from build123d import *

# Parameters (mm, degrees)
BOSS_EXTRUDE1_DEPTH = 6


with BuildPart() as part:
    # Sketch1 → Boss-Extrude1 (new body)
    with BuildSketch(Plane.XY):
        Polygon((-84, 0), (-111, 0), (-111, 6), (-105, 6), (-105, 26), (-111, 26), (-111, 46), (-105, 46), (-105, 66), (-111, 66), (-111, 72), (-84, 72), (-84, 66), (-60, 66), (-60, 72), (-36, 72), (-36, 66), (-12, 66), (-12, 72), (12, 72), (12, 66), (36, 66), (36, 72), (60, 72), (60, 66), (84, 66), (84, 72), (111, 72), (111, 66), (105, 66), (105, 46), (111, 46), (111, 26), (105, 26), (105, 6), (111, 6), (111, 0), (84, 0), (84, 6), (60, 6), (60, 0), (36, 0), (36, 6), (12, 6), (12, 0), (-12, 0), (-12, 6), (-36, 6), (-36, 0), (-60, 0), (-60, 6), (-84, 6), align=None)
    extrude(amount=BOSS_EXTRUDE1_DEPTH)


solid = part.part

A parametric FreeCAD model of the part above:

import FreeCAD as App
import Part
import Sketcher

V = App.Vector
Q = App.Units.Quantity


def add_polygon(sketch, points):
    """Adds a closed chain of lines whose ends are joined by coincident constraints."""
    first, n = sketch.GeometryCount, len(points)
    for a, b in zip(points, points[1:] + points[:1]):
        sketch.addGeometry(Part.LineSegment(App.Vector(*a, 0), App.Vector(*b, 0)), False)
    for i in range(n):
        sketch.addConstraint(Sketcher.Constraint("Coincident", first + i, 2, first + (i + 1) % n, 1))

doc = App.newDocument("Part")
body = doc.addObject("PartDesign::Body", "Body")

# Sketch on XY plane
sketch1 = body.newObject("Sketcher::SketchObject", "Sketch")
sketch1.AttachmentSupport = (doc.getObject("XY_Plane"), [""])
sketch1.MapMode = "FlatFace"
add_polygon(sketch1, [(-111, 0), (-84, 0), (-84, 6), (-60, 6), (-60, 0), (-36, 0), (-36, 6), (-12, 6), (-12, 0), (12, 0), (12, 6), (36, 6), (36, 0), (60, 0), (60, 6), (84, 6), (84, 0), (111, 0), (111, 6), (105, 6), (105, 26), (111, 26), (111, 46), (105, 46), (105, 66), (111, 66), (111, 72), (84, 72), (84, 66), (60, 66), (60, 72), (36, 72), (36, 66), (12, 66), (12, 72), (-12, 72), (-12, 66), (-36, 66), (-36, 72), (-60, 72), (-60, 66), (-84, 66), (-84, 72), (-111, 72), (-111, 66), (-105, 66), (-105, 46), (-111, 46), (-111, 26), (-105, 26), (-105, 6), (-111, 6)])  # lines 0-51
sketch1.addConstraint(Sketcher.Constraint("Horizontal", 0))
sketch1.addConstraint(Sketcher.Constraint("Vertical", 1))
sketch1.addConstraint(Sketcher.Constraint("Horizontal", 2))
sketch1.addConstraint(Sketcher.Constraint("Vertical", 3))
sketch1.addConstraint(Sketcher.Constraint("Horizontal", 4))
sketch1.addConstraint(Sketcher.Constraint("Vertical", 5))
sketch1.addConstraint(Sketcher.Constraint("Horizontal", 6))
sketch1.addConstraint(Sketcher.Constraint("Vertical", 7))
sketch1.addConstraint(Sketcher.Constraint("Horizontal", 8))
sketch1.addConstraint(Sketcher.Constraint("Vertical", 9))
sketch1.addConstraint(Sketcher.Constraint("Horizontal", 10))
sketch1.addConstraint(Sketcher.Constraint("Vertical", 11))
sketch1.addConstraint(Sketcher.Constraint("Horizontal", 12))
sketch1.addConstraint(Sketcher.Constraint("Vertical", 13))
sketch1.addConstraint(Sketcher.Constraint("Horizontal", 14))
sketch1.addConstraint(Sketcher.Constraint("Vertical", 15))
sketch1.addConstraint(Sketcher.Constraint("Horizontal", 16))
sketch1.addConstraint(Sketcher.Constraint("Vertical", 17))
sketch1.addConstraint(Sketcher.Constraint("Horizontal", 18))
sketch1.addConstraint(Sketcher.Constraint("Vertical", 19))
sketch1.addConstraint(Sketcher.Constraint("Horizontal", 20))
sketch1.addConstraint(Sketcher.Constraint("Vertical", 21))
sketch1.addConstraint(Sketcher.Constraint("Horizontal", 22))
sketch1.addConstraint(Sketcher.Constraint("Vertical", 23))
sketch1.addConstraint(Sketcher.Constraint("Horizontal", 24))
sketch1.addConstraint(Sketcher.Constraint("Vertical", 25))
sketch1.addConstraint(Sketcher.Constraint("Horizontal", 26))
sketch1.addConstraint(Sketcher.Constraint("Vertical", 27))
sketch1.addConstraint(Sketcher.Constraint("Horizontal", 28))
sketch1.addConstraint(Sketcher.Constraint("Vertical", 29))
sketch1.addConstraint(Sketcher.Constraint("Horizontal", 30))
sketch1.addConstraint(Sketcher.Constraint("Vertical", 31))
sketch1.addConstraint(Sketcher.Constraint("Horizontal", 32))
sketch1.addConstraint(Sketcher.Constraint("Vertical", 33))
sketch1.addConstraint(Sketcher.Constraint("Horizontal", 34))
sketch1.addConstraint(Sketcher.Constraint("Vertical", 35))
sketch1.addConstraint(Sketcher.Constraint("Horizontal", 36))
sketch1.addConstraint(Sketcher.Constraint("Vertical", 37))
sketch1.addConstraint(Sketcher.Constraint("Horizontal", 38))
sketch1.addConstraint(Sketcher.Constraint("Vertical", 39))
sketch1.addConstraint(Sketcher.Constraint("Horizontal", 40))
sketch1.addConstraint(Sketcher.Constraint("Vertical", 41))
sketch1.addConstraint(Sketcher.Constraint("Horizontal", 42))
sketch1.addConstraint(Sketcher.Constraint("Vertical", 43))
sketch1.addConstraint(Sketcher.Constraint("Horizontal", 44))
sketch1.addConstraint(Sketcher.Constraint("Vertical", 45))
sketch1.addConstraint(Sketcher.Constraint("Horizontal", 46))
sketch1.addConstraint(Sketcher.Constraint("Vertical", 47))
sketch1.addConstraint(Sketcher.Constraint("Horizontal", 48))
sketch1.addConstraint(Sketcher.Constraint("Vertical", 49))
sketch1.addConstraint(Sketcher.Constraint("Horizontal", 50))
sketch1.addConstraint(Sketcher.Constraint("Vertical", 51))
sketch1.addConstraint(Sketcher.Constraint("Symmetric", 7, 2, 8, 2, -1, 1))
sketch1.addConstraint(Sketcher.Constraint("Symmetric", 4, 2, 11, 2, -1, 1))
sketch1.addConstraint(Sketcher.Constraint("Symmetric", 0, 2, 15, 2, -1, 1))
sketch1.addConstraint(Sketcher.Constraint("Symmetric", 3, 2, 12, 2, -2))
sketch1.addConstraint(Sketcher.Constraint("Symmetric", 32, 2, 35, 2, -2))
sketch1.addConstraint(Sketcher.Constraint("Symmetric", 30, 2, 37, 2, -2))
sketch1.addConstraint(Sketcher.Constraint("Symmetric", 28, 2, 39, 2, -2))
sketch1.addConstraint(Sketcher.Constraint("Symmetric", 26, 2, 41, 2, -2))
sketch1.addConstraint(Sketcher.Constraint("Symmetric", 24, 2, 43, 2, -2))
sketch1.addConstraint(Sketcher.Constraint("Symmetric", 22, 2, 45, 2, -2))
sketch1.addConstraint(Sketcher.Constraint("Symmetric", 20, 2, 47, 2, -2))
sketch1.addConstraint(Sketcher.Constraint("Symmetric", 18, 2, 49, 2, -2))
sketch1.addConstraint(Sketcher.Constraint("Symmetric", 16, 2, 51, 2, -2))
sketch1.addConstraint(Sketcher.Constraint("Horizontal", 2, 2, 5, 2))
sketch1.addConstraint(Sketcher.Constraint("Horizontal", 6, 2, 9, 2))
sketch1.addConstraint(Sketcher.Constraint("Horizontal", 10, 2, 13, 2))
sketch1.addConstraint(Sketcher.Constraint("Horizontal", 14, 2, 17, 2))
sketch1.addConstraint(Sketcher.Constraint("Horizontal", 24, 2, 27, 2))
sketch1.addConstraint(Sketcher.Constraint("Horizontal", 26, 2, 29, 2))
sketch1.addConstraint(Sketcher.Constraint("Horizontal", 28, 2, 31, 2))
sketch1.addConstraint(Sketcher.Constraint("Horizontal", 30, 2, 33, 2))
sketch1.addConstraint(Sketcher.Constraint("Vertical", 17, 2, 20, 2))
sketch1.addConstraint(Sketcher.Constraint("Vertical", 19, 2, 22, 2))
sketch1.addConstraint(Sketcher.Constraint("Vertical", 21, 2, 24, 2))
sketch1.addConstraint(Sketcher.Constraint("Vertical", 15, 2, 26, 2))
sketch1.addConstraint(Sketcher.Constraint("Vertical", 13, 2, 28, 2))
sketch1.addConstraint(Sketcher.Constraint("Vertical", 11, 2, 30, 2))
sketch1.addConstraint(Sketcher.Constraint("Vertical", 9, 2, 32, 2))
sketch1.addConstraint(Sketcher.Constraint("Equal", 2, 4))
sketch1.addConstraint(Sketcher.Constraint("Equal", 4, 6))
sketch1.addConstraint(Sketcher.Constraint("Equal", 6, 8))
sketch1.addConstraint(Sketcher.Constraint("Equal", 50, 1))
sketch1.addConstraint(Sketcher.Constraint("Equal", 19, 21))
sketch1.addConstraint(Sketcher.Constraint("Equal", 21, 23))
sketch1.addConstraint(Sketcher.Constraint("Equal", 17, 25))
sketch1.addConstraint(Sketcher.Constraint("DistanceX", 0, 1, 0, 2, Q("27 mm")))
sketch1.addConstraint(Sketcher.Constraint("DistanceX", 2, 1, 2, 2, Q("24 mm")))
sketch1.addConstraint(Sketcher.Constraint("DistanceX", 18, 2, 18, 1, Q("6 mm")))
sketch1.addConstraint(Sketcher.Constraint("DistanceY", 19, 1, 19, 2, Q("20 mm")))
pad1 = body.newObject("PartDesign::Pad", "Pad")
pad1.Profile = sketch1
pad1.Length = 6

doc.recompute()
